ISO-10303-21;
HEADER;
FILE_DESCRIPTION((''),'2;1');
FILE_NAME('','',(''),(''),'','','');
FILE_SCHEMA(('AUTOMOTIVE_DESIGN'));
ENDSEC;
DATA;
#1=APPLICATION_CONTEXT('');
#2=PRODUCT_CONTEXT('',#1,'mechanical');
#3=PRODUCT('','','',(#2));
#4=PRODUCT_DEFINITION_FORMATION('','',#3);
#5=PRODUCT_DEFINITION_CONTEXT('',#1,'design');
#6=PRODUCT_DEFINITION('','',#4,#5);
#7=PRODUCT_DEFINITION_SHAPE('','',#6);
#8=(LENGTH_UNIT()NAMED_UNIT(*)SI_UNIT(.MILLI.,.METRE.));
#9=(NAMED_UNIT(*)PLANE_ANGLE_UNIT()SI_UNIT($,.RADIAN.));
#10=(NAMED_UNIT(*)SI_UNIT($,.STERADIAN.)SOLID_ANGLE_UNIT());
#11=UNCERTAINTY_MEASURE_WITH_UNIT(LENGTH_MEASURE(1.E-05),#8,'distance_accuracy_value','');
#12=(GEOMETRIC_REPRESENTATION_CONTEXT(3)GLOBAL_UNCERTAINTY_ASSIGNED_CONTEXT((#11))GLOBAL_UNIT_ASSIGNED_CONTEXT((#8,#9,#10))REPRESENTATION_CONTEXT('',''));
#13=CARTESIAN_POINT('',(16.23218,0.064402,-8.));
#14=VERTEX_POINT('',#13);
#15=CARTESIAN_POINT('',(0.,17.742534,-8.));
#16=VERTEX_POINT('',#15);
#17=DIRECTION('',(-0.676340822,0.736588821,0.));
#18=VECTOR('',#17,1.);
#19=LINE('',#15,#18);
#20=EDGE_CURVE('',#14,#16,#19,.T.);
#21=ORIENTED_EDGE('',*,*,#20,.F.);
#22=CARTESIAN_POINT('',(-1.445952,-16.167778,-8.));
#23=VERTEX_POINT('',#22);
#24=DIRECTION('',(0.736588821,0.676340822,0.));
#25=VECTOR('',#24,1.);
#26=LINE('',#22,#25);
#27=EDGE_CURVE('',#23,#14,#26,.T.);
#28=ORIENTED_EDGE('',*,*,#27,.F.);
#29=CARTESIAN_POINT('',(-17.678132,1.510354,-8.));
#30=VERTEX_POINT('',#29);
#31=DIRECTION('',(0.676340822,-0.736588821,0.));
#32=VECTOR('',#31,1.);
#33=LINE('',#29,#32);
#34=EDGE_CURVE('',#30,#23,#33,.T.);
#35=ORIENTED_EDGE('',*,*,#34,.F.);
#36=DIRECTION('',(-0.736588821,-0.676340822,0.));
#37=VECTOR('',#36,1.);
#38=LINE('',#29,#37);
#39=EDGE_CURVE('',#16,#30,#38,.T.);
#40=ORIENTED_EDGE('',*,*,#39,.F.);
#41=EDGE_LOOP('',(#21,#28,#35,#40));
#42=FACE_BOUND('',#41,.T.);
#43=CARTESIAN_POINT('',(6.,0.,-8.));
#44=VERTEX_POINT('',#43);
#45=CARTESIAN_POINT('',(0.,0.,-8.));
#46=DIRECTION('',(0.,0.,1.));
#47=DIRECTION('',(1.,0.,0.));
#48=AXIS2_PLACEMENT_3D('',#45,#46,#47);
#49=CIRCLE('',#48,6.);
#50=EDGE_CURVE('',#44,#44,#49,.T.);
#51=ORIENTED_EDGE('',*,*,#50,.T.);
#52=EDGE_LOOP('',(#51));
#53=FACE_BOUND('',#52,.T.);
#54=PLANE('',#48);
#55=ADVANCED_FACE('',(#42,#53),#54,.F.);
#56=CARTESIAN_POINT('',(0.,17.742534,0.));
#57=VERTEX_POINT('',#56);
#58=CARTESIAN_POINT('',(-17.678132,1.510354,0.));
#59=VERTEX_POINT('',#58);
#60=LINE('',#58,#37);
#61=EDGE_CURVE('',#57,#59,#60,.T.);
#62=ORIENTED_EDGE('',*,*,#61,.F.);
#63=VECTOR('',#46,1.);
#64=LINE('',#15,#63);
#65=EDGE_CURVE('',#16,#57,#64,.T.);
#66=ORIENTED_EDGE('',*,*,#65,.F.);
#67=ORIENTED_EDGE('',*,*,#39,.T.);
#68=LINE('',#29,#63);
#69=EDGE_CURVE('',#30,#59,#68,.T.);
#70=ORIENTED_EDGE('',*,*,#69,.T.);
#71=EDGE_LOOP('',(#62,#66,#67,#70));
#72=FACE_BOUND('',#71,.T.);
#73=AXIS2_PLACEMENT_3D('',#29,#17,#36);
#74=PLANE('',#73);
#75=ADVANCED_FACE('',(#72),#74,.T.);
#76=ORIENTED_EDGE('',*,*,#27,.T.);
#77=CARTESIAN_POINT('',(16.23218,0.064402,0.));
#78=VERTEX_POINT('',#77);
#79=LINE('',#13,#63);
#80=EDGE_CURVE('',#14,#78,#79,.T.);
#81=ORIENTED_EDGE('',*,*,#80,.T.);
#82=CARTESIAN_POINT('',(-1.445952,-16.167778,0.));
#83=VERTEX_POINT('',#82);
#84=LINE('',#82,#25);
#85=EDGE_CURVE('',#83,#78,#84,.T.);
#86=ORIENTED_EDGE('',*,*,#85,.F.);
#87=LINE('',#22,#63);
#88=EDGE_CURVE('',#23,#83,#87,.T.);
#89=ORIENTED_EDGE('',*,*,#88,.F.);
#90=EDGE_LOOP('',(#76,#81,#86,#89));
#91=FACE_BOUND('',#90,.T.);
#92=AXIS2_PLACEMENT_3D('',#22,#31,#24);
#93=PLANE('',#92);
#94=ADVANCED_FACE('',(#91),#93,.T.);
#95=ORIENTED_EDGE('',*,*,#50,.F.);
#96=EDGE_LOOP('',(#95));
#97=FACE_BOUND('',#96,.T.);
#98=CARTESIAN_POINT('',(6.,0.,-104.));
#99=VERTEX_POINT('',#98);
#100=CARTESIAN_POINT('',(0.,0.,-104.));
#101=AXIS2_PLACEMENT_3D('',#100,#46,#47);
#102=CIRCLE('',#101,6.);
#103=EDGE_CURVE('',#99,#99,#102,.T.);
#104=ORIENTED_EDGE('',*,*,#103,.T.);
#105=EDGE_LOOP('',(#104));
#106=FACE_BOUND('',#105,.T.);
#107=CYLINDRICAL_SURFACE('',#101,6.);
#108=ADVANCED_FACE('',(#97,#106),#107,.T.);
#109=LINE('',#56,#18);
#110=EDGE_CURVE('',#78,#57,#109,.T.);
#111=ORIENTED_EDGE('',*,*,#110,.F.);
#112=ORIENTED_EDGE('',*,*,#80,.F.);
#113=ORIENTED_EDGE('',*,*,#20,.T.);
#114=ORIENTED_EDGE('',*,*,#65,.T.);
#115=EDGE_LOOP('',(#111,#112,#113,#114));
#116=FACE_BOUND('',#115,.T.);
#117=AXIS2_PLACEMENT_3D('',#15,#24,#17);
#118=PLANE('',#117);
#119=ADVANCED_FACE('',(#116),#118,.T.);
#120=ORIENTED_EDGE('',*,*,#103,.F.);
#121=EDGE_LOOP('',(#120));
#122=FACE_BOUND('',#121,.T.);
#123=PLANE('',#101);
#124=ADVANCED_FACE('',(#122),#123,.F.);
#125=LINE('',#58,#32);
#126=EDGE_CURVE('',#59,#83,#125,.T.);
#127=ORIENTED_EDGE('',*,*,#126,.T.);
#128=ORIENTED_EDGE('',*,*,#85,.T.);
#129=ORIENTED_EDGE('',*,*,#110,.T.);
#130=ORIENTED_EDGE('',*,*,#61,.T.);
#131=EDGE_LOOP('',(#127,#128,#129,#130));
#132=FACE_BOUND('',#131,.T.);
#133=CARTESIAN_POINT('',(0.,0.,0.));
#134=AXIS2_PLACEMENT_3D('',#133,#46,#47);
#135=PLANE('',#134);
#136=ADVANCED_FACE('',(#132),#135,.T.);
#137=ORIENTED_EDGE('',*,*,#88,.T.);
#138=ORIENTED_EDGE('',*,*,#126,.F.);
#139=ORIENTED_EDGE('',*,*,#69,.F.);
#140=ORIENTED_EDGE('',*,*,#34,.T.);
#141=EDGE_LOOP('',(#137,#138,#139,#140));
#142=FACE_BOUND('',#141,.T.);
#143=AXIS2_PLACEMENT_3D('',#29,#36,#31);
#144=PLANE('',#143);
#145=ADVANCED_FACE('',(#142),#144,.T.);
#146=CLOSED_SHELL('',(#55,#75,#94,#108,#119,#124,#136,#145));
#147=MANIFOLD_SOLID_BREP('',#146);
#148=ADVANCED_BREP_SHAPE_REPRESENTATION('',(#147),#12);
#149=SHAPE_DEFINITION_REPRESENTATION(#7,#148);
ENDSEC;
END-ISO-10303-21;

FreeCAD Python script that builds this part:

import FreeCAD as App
import Part
import Sketcher


def add_polygon(sketch, points):
    """Adds a closed chain of lines whose ends are joined by coincident constraints."""
    first, n = sketch.GeometryCount, len(points)
    for a, b in zip(points, points[1:] + points[:1]):
        sketch.addGeometry(Part.LineSegment(App.Vector(*a, 0), App.Vector(*b, 0)), False)
    for i in range(n):
        sketch.addConstraint(Sketcher.Constraint("Coincident", first + i, 2, first + (i + 1) % n, 1))

doc = App.newDocument("Part")
body = doc.addObject("PartDesign::Body", "Body")

sketch1 = doc.addObject("Sketcher::SketchObject", "Sketch")
body.addObject(sketch1)
sketch1.AttachmentSupport = (doc.XY_Plane, [""])
sketch1.MapMode = "FlatFace"
add_polygon(sketch1, [(0, 18), (-18, 2), (-1, -16), (16, 0)])
sketch1.addConstraint([
    Sketcher.Constraint("PointOnObject", 3, 2, -2),
    Sketcher.Constraint("Perpendicular", 0, 1),
    Sketcher.Constraint("Perpendicular", 1, 2),
    Sketcher.Constraint("Perpendicular", 2, 3),
    Sketcher.Constraint("Equal", 0, 1),
    Sketcher.Constraint("Distance", 0, 24.0),
    Sketcher.Constraint("DistanceX", 0, 2, -1, 1, 17.678132),
    Sketcher.Constraint("DistanceY", -1, 1, 0, 2, 1.510354),
])
pad1 = doc.addObject("PartDesign::Pad", "Pad")
body.addObject(pad1)
pad1.Profile = sketch1
pad1.Length = 8
pad1.Reversed = True

sketch2 = doc.addObject("Sketcher::SketchObject", "Sketch001")
body.addObject(sketch2)
sketch2.AttachmentSupport = (doc.XY_Plane, [""])
sketch2.MapMode = "FlatFace"
sketch2.addGeometry(Part.Circle(App.Vector(0, 0, 0), App.Vector(0, 0, 1), 6), False)
sketch2.addConstraint([
    Sketcher.Constraint("Coincident", 0, 3, -1, 1),
    Sketcher.Constraint("Diameter", 0, 12.0),
])
pad2 = doc.addObject("PartDesign::Pad", "Pad001")
body.addObject(pad2)
pad2.Profile = sketch2
pad2.Length = 104
pad2.Reversed = True

doc.recompute()
